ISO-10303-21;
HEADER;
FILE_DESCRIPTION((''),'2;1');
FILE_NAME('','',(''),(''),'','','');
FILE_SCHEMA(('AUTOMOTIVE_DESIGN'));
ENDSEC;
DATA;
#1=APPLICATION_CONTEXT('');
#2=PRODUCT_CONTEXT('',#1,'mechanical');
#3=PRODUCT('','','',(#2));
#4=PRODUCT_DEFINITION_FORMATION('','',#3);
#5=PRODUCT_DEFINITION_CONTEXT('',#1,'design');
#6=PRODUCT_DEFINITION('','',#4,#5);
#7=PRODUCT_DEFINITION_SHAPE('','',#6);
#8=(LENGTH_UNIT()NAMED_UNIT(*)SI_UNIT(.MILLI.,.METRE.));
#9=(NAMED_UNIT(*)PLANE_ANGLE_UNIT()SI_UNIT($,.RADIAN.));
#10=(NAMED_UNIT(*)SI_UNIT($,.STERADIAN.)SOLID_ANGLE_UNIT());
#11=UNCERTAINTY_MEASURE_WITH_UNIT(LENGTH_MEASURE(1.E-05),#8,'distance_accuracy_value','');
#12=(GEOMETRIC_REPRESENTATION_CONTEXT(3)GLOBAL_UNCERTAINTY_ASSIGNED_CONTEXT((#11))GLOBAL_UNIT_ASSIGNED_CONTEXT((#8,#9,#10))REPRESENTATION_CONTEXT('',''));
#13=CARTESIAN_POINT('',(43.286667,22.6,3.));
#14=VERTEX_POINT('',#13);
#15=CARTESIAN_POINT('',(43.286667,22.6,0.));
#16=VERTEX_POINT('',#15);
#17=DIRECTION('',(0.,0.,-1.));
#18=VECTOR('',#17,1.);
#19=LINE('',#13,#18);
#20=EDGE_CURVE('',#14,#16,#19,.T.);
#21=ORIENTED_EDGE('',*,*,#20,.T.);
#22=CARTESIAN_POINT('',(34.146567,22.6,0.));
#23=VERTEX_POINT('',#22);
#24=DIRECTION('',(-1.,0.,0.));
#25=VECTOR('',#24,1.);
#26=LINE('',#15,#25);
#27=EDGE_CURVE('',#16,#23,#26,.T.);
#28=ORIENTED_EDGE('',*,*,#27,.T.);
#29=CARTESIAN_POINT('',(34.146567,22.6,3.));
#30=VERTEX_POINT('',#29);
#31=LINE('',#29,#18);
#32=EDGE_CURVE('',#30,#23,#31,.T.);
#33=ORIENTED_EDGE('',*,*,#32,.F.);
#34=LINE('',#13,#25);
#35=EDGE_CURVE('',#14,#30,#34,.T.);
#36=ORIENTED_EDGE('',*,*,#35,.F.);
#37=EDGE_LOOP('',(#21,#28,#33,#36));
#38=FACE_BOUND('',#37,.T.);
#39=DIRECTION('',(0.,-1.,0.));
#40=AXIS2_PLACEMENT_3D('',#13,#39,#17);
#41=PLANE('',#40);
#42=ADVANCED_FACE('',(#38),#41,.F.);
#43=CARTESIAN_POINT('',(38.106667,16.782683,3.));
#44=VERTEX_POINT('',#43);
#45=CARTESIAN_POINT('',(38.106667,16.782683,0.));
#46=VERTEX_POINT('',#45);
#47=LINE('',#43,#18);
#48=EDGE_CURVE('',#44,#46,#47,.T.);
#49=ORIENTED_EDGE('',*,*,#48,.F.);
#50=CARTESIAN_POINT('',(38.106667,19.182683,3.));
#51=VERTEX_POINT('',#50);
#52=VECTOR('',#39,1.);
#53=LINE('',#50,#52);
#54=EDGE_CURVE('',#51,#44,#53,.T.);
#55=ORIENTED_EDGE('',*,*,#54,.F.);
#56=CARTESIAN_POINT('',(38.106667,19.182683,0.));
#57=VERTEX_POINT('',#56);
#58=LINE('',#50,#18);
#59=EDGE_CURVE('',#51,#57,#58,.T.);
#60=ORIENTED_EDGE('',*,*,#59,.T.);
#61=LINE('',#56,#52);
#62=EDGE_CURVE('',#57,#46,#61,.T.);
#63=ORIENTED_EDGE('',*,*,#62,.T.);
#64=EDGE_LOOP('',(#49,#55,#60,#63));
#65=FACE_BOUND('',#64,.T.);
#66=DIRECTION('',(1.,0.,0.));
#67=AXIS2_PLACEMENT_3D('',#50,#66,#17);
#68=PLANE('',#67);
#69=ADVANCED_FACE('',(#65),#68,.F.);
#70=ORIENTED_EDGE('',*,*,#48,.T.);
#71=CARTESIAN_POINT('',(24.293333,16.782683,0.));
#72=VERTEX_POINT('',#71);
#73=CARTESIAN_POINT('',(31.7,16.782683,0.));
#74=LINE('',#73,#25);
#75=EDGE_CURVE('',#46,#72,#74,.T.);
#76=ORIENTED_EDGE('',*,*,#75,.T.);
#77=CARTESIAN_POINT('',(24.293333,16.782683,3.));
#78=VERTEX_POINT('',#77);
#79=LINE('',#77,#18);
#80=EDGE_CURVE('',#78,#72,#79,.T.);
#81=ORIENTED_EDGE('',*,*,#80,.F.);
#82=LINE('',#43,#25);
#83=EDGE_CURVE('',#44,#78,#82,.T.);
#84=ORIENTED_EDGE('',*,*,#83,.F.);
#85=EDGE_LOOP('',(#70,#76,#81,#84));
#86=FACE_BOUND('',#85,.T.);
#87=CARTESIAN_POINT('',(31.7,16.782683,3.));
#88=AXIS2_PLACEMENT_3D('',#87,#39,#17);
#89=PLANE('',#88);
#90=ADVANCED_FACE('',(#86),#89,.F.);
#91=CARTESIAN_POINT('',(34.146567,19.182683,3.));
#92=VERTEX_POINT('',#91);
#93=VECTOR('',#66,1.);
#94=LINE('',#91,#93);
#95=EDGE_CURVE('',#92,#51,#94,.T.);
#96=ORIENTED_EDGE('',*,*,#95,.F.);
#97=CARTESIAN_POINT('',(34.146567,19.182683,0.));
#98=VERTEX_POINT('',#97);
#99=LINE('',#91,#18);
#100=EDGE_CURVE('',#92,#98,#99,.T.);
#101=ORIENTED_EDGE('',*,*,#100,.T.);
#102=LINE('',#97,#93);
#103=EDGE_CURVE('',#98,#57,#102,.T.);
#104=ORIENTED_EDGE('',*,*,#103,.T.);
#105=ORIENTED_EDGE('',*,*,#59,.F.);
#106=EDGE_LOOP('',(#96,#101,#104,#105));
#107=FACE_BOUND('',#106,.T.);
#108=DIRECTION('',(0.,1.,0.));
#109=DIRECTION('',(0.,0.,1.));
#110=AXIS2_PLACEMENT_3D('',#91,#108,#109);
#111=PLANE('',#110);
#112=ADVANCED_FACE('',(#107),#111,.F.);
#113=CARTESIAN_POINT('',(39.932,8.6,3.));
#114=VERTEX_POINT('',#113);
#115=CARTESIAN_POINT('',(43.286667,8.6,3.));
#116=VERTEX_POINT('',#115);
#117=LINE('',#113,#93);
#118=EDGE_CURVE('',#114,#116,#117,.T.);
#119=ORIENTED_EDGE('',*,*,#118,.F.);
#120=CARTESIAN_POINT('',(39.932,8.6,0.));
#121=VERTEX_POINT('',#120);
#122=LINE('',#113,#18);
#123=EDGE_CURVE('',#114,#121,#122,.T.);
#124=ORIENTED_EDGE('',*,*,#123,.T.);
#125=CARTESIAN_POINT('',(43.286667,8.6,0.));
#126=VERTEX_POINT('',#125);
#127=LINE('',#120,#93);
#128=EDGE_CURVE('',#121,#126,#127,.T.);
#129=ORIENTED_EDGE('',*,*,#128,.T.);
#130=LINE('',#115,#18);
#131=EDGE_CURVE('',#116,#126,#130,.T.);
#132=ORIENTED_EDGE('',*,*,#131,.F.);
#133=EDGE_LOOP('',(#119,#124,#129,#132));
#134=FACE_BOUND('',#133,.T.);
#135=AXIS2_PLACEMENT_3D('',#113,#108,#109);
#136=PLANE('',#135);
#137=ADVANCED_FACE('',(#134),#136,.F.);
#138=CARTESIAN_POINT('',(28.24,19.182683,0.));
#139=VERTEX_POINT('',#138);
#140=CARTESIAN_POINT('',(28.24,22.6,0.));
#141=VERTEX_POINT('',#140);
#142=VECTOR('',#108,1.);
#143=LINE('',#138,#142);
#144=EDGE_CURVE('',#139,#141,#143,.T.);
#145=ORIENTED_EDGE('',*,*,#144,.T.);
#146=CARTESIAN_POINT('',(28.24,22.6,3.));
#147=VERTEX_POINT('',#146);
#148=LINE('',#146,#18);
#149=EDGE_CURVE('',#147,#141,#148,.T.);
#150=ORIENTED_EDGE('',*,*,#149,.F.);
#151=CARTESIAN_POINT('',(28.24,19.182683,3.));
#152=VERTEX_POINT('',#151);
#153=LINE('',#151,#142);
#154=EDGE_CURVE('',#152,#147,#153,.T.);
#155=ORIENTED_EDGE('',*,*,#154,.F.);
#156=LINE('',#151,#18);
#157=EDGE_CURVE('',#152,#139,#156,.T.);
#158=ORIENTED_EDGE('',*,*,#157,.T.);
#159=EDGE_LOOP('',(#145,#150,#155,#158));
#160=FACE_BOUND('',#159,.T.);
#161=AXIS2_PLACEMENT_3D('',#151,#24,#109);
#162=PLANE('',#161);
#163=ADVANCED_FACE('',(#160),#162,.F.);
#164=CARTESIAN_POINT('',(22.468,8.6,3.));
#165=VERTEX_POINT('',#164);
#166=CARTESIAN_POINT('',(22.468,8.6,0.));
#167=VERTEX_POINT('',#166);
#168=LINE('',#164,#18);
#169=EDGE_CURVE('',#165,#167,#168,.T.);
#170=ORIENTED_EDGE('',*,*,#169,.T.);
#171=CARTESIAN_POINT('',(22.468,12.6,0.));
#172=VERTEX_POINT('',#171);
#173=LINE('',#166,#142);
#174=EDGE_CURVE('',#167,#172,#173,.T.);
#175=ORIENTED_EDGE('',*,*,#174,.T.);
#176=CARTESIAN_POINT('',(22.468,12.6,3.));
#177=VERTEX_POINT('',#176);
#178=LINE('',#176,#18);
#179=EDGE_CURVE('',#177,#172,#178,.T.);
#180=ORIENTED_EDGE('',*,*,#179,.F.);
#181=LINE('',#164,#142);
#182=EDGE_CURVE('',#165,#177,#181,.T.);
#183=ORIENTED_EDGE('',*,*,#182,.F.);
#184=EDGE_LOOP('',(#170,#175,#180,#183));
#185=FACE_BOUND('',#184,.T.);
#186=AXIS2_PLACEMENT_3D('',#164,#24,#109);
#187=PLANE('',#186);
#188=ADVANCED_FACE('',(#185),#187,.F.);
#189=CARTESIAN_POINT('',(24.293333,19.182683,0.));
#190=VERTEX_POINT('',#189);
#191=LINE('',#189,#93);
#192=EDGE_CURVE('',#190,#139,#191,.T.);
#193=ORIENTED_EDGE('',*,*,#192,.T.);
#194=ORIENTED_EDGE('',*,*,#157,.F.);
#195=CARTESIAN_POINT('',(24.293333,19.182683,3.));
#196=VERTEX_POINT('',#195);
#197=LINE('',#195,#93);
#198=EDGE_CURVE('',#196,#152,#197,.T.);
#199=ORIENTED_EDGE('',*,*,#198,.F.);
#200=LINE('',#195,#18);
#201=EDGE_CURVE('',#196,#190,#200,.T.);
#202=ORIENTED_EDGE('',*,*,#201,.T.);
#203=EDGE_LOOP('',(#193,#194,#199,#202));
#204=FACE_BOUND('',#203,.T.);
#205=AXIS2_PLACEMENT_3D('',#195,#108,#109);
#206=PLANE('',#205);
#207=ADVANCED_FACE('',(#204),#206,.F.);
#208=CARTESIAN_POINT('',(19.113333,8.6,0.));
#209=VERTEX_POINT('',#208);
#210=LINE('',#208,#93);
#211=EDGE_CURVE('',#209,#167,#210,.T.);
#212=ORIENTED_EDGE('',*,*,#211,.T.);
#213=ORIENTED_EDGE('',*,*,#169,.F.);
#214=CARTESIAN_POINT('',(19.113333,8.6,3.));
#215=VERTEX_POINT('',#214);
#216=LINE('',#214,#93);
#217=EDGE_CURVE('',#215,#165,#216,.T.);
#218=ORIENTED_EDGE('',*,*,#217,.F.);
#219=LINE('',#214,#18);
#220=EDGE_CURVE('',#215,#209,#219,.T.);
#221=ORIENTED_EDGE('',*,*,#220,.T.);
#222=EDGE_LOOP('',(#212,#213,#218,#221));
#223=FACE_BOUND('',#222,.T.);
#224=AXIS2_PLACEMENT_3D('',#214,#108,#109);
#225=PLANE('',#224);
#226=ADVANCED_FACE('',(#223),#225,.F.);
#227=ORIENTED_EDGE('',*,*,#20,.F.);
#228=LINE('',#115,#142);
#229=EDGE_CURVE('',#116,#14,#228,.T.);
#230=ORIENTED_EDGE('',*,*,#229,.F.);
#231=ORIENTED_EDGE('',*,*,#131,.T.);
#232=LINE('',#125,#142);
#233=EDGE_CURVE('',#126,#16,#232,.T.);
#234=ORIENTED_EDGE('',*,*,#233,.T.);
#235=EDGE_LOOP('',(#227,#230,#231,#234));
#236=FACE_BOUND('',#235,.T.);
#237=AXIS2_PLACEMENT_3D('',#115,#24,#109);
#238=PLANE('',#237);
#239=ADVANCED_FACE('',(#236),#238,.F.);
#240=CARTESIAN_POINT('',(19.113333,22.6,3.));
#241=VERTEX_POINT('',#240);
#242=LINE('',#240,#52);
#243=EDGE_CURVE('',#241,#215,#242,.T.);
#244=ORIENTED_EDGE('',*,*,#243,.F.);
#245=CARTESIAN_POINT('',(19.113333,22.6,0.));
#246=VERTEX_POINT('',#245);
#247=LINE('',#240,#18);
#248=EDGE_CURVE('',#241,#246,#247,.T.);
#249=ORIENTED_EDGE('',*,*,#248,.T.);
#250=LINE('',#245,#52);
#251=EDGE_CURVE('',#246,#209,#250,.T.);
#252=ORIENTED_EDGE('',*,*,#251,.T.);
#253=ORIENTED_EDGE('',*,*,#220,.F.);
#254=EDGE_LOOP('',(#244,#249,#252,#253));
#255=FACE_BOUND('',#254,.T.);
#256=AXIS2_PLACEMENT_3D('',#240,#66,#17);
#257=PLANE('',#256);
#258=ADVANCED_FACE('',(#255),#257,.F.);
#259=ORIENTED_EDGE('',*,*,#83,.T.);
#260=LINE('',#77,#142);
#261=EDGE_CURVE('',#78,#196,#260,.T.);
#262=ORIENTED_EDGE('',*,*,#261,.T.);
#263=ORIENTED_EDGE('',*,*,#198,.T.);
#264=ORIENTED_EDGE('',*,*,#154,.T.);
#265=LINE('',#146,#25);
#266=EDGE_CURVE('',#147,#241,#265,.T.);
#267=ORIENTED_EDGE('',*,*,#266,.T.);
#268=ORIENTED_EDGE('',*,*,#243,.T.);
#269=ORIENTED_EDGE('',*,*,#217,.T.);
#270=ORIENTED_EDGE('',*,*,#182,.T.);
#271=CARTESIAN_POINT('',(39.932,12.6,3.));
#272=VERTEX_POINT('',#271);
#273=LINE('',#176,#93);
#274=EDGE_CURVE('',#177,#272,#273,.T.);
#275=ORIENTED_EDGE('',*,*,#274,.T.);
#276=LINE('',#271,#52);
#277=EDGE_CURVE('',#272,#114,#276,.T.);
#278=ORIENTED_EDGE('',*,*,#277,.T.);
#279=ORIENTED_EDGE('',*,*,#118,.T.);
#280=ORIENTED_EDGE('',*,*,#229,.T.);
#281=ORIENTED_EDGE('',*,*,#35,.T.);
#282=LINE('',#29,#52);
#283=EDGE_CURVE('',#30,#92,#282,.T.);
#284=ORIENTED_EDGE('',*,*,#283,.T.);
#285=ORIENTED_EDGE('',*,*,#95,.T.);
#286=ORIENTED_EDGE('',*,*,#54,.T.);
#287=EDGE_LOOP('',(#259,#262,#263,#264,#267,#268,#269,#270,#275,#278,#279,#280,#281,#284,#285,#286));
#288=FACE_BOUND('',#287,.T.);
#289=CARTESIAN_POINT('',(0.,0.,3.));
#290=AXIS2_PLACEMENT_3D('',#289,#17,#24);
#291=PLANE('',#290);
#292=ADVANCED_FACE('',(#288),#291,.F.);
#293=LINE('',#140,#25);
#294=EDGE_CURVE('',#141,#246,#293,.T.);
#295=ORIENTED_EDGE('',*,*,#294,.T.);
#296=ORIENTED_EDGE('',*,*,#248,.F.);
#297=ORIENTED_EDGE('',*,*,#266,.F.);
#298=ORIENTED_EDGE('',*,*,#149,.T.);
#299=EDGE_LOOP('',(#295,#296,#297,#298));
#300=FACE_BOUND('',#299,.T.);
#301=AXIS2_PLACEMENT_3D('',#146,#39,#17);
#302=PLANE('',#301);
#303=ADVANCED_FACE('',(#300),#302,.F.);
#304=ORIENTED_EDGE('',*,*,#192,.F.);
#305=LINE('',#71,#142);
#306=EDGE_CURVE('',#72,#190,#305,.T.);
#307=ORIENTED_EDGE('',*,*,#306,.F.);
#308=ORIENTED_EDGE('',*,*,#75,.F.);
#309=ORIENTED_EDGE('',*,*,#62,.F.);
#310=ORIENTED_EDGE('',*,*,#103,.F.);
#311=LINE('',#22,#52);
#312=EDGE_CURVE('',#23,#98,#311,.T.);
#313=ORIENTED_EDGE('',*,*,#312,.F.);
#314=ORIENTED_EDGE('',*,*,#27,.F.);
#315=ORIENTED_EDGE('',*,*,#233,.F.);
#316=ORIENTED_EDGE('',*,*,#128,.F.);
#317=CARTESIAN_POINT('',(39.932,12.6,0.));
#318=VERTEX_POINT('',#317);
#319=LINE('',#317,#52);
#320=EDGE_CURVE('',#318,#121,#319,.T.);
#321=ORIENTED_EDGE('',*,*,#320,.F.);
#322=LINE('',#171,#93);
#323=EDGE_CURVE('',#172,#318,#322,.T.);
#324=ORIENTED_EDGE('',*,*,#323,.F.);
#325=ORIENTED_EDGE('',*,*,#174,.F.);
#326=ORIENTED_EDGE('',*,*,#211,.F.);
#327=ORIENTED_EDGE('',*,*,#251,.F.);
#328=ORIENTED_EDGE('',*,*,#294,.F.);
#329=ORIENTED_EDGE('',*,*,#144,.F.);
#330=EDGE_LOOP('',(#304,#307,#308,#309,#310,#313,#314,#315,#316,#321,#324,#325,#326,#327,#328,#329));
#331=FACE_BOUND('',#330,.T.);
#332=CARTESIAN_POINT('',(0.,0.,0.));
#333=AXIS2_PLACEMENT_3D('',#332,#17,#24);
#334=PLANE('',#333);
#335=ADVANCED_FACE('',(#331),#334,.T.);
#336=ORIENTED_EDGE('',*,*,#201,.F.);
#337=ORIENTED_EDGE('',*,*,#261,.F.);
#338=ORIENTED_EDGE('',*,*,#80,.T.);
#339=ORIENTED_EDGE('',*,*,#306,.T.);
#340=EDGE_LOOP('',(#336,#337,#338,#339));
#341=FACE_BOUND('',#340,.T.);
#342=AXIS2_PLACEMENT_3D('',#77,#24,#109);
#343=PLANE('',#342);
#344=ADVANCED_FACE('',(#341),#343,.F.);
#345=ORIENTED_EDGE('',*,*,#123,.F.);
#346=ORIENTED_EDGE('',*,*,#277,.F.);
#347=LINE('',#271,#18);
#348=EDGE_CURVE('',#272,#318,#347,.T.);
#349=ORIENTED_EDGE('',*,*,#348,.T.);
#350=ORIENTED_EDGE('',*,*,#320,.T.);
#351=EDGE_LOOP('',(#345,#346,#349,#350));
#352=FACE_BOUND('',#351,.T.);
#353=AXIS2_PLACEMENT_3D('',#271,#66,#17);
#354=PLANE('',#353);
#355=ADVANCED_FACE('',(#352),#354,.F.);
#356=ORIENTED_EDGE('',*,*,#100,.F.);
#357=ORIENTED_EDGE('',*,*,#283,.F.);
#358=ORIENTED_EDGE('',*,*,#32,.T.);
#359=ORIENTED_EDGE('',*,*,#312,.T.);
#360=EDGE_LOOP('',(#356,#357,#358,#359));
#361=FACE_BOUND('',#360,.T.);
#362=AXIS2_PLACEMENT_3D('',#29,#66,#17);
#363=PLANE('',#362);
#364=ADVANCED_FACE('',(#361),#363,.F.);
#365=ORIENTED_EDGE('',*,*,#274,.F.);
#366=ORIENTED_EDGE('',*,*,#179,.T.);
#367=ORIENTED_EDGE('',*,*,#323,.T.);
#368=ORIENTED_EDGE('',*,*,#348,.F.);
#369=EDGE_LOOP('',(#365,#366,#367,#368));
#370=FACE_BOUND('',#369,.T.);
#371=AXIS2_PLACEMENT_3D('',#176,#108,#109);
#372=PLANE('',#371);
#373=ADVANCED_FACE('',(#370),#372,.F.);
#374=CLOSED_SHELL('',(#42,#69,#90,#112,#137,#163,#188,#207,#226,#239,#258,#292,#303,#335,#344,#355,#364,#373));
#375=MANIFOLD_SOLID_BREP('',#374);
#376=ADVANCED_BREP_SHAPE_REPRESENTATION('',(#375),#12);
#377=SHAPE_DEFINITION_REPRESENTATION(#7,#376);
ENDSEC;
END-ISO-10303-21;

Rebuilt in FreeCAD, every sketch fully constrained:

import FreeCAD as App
import Part
import Sketcher


def add_polygon(sketch, points):
    """Adds a closed chain of lines whose ends are joined by coincident constraints."""
    first, n = sketch.GeometryCount, len(points)
    for a, b in zip(points, points[1:] + points[:1]):
        sketch.addGeometry(Part.LineSegment(App.Vector(*a, 0), App.Vector(*b, 0)), False)
    for i in range(n):
        sketch.addConstraint(Sketcher.Constraint("Coincident", first + i, 2, first + (i + 1) % n, 1))

doc = App.newDocument("Part")
body = doc.addObject("PartDesign::Body", "Body")

# Sketch on XY plane
sketch1 = doc.addObject("Sketcher::SketchObject", "Sketch")
body.addObject(sketch1)
sketch1.AttachmentSupport = (doc.XY_Plane, [""])
sketch1.MapMode = "FlatFace"
add_polygon(sketch1, [(24.3, 16.8), (24.3, 19.2), (28.2, 19.2), (28.2, 22.6), (19.1, 22.6), (19.1, 8.6), (22.5, 8.6), (22.5, 12.6), (39.9, 12.6), (39.9, 8.6), (43.3, 8.6), (43.3, 22.6), (34.1, 22.6), (34.1, 19.2), (38.1, 19.2), (38.1, 16.8)])  # lines 0-15
sketch1.addConstraint(Sketcher.Constraint("Vertical", 0))
sketch1.addConstraint(Sketcher.Constraint("Horizontal", 1))
sketch1.addConstraint(Sketcher.Constraint("Vertical", 2))
sketch1.addConstraint(Sketcher.Constraint("Horizontal", 3))
sketch1.addConstraint(Sketcher.Constraint("Vertical", 4))
sketch1.addConstraint(Sketcher.Constraint("Horizontal", 5))
sketch1.addConstraint(Sketcher.Constraint("Vertical", 6))
sketch1.addConstraint(Sketcher.Constraint("Horizontal", 7))
sketch1.addConstraint(Sketcher.Constraint("Vertical", 8))
sketch1.addConstraint(Sketcher.Constraint("Horizontal", 9))
sketch1.addConstraint(Sketcher.Constraint("Vertical", 10))
sketch1.addConstraint(Sketcher.Constraint("Horizontal", 11))
sketch1.addConstraint(Sketcher.Constraint("Vertical", 12))
sketch1.addConstraint(Sketcher.Constraint("Horizontal", 13))
sketch1.addConstraint(Sketcher.Constraint("Vertical", 14))
sketch1.addConstraint(Sketcher.Constraint("Horizontal", 15))
sketch1.addConstraint(Sketcher.Constraint("Horizontal", 5, 2, 8, 2))
sketch1.addConstraint(Sketcher.Constraint("Horizontal", 3, 2, 10, 2))
sketch1.addConstraint(Sketcher.Constraint("Horizontal", 1, 2, 12, 2))
sketch1.addConstraint(Sketcher.Constraint("Equal", 5, 9))
sketch1.addConstraint(Sketcher.Constraint("DistanceY", 4, 2, 4, 1, 14.0))
sketch1.addConstraint(Sketcher.Constraint("DistanceY", 6, 1, 6, 2, 4.0))
sketch1.addConstraint(Sketcher.Constraint("DistanceY", 0, 1, 0, 2, 2.4))
sketch1.addConstraint(Sketcher.Constraint("DistanceY", -1, 1, 2, 2, 22.6))
sketch1.addConstraint(Sketcher.Constraint("DistanceX", 7, 1, 7, 2, 17.464))
sketch1.addConstraint(Sketcher.Constraint("DistanceX", -1, 1, 1, 2, 28.24))
sketch1.addConstraint(Sketcher.Constraint("DistanceX", 3, 2, 0, 2, 5.18))
sketch1.addConstraint(Sketcher.Constraint("DistanceX", 13, 2, 10, 2, 5.18))
sketch1.addConstraint(Sketcher.Constraint("DistanceX", 11, 2, 11, 1, 9.1401))
sketch1.addConstraint(Sketcher.Constraint("DistanceX", -1, 1, 5, 2, 22.468))
sketch1.addConstraint(Sketcher.Constraint("DistanceX", 1, 1, 1, 2, 3.946667))
sketch1.addConstraint(Sketcher.Constraint("DistanceY", 2, 1, 2, 2, 3.417317))
pad1 = doc.addObject("PartDesign::Pad", "Pad")
body.addObject(pad1)
pad1.Profile = sketch1
pad1.Length = 3

doc.recompute()
